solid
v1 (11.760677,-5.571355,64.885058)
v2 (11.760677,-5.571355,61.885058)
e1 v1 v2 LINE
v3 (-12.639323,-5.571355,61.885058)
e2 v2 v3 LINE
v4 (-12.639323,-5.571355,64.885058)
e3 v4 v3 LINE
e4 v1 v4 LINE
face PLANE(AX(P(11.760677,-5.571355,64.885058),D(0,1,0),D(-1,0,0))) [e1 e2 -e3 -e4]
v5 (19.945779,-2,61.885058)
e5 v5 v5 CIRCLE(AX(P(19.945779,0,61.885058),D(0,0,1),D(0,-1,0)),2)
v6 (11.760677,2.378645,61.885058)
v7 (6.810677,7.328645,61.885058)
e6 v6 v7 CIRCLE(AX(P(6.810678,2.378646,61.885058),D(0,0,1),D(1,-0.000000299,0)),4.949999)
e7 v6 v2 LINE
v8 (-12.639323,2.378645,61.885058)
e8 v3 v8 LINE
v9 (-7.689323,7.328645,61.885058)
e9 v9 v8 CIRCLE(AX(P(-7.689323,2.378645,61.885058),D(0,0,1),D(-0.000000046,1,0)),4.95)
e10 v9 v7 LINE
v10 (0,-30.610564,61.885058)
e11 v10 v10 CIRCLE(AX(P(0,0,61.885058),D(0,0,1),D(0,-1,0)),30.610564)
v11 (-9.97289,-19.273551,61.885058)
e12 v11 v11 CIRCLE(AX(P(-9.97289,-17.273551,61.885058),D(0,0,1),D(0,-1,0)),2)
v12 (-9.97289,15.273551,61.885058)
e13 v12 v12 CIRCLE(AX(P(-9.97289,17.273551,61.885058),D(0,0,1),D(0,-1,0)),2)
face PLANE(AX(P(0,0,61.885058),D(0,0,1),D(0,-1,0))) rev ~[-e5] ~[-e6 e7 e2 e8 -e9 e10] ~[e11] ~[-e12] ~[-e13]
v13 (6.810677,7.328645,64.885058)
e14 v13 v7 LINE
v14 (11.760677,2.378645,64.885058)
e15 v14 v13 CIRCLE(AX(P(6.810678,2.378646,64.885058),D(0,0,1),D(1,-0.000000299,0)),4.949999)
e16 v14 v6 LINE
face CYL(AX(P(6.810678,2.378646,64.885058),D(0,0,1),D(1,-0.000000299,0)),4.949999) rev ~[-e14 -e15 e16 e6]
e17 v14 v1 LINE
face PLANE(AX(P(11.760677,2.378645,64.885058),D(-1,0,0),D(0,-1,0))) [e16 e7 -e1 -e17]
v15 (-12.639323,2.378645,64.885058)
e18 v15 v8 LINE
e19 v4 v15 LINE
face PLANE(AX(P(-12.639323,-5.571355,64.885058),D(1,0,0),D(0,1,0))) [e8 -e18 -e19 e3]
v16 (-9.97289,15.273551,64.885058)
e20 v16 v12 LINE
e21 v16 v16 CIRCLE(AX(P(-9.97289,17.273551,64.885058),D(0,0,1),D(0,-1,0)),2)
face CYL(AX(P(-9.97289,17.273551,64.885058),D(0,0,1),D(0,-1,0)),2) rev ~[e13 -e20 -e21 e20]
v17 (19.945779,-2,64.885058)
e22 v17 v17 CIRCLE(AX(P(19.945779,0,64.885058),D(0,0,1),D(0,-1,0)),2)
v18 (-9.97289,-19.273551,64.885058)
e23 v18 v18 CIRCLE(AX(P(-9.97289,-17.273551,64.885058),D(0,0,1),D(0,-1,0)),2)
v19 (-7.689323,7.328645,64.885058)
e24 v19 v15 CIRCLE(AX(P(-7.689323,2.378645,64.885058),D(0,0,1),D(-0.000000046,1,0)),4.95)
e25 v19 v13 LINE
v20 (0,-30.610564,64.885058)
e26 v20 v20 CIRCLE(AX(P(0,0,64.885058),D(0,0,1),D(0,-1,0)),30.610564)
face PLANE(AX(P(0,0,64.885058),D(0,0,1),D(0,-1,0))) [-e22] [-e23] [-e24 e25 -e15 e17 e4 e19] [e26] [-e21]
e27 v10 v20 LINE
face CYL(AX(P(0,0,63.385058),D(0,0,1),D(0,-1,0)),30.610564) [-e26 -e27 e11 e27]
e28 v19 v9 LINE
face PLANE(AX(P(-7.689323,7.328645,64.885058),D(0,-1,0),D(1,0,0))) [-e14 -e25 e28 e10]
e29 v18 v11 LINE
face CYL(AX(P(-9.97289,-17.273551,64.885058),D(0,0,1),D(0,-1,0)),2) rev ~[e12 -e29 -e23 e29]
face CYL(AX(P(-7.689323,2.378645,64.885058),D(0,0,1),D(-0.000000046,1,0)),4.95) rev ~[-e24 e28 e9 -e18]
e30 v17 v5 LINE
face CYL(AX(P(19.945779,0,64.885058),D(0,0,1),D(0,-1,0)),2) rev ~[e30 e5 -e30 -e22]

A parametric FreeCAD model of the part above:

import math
import FreeCAD as App
import Part
import Sketcher
Q = App.Units.Quantity

doc = App.newDocument("Part")
body = doc.addObject("PartDesign::Body", "Body")

# Sketch on YZ plane
sketch1 = body.newObject("Sketcher::SketchObject", "Sketch")
sketch1.AttachmentSupport = (doc.getObject("YZ_Plane"), [""])
sketch1.MapMode = "FlatFace"
sketch1.addGeometry([
    Part.LineSegment(App.Vector(-30.6, 64.9, 0), App.Vector(-30.6, 61.9, 0)),
    Part.LineSegment(App.Vector(-30.6, 61.9, 0), App.Vector(0, 61.9, 0)),
    Part.LineSegment(App.Vector(0, 61.9, 0), App.Vector(0, 64.9, 0)),
    Part.LineSegment(App.Vector(0, 64.9, 0), App.Vector(-30.6, 64.9, 0)),
], False)
sketch1.addConstraint([
    Sketcher.Constraint("Coincident", 0, 2, 1, 1),
    Sketcher.Constraint("Coincident", 1, 2, 2, 1),
    Sketcher.Constraint("Coincident", 2, 2, 3, 1),
    Sketcher.Constraint("Coincident", 3, 2, 0, 1),
    Sketcher.Constraint("Vertical", 0),
    Sketcher.Constraint("Horizontal", 1),
    Sketcher.Constraint("Vertical", 2),
    Sketcher.Constraint("Horizontal", 3),
    Sketcher.Constraint("PointOnObject", 1, 2, -2),
    Sketcher.Constraint("DistanceY", 0, 2, 0, 1, Q("3 mm")),
    Sketcher.Constraint("DistanceX", 1, 1, 1, 2, Q("30.610564 mm")),
    Sketcher.Constraint("DistanceY", -1, 1, 2, 2, Q("64.885058 mm")),
])
revolution = body.newObject("PartDesign::Revolution", "Revolution")
revolution.Profile = sketch1
revolution.ReferenceAxis = (sketch1, ["V_Axis"])
revolution.Angle = 360

# Sketch on XY plane
sketch2 = body.newObject("Sketcher::SketchObject", "Sketch001")
sketch2.AttachmentSupport = (doc.getObject("XY_Plane"), [""])
sketch2.MapMode = "FlatFace"
sketch2.AttachmentOffset = App.Placement(App.Vector(0, 0, 64.885058), App.Rotation())
sketch2.addGeometry([
    Part.LineSegment(App.Vector(11.8, -5.6, 0), App.Vector(11.8, 2.4, 0)),  # 0
    Part.ArcOfCircle(Part.Circle(App.Vector(6.8, 2.4, 0), App.Vector(0, 0, 1), 4.9), math.radians(0), math.radians(90)),  # 1
    Part.LineSegment(App.Vector(6.8, 7.3, 0), App.Vector(-7.7, 7.3, 0)),  # 2
    Part.ArcOfCircle(Part.Circle(App.Vector(-7.7, 2.4, 0), App.Vector(0, 0, 1), 5), math.radians(90), math.radians(180)),  # 3
    Part.LineSegment(App.Vector(-12.6, 2.4, 0), App.Vector(-12.6, -5.6, 0)),  # 4
    Part.LineSegment(App.Vector(-12.6, -5.6, 0), App.Vector(11.8, -5.6, 0)),  # 5
], False)
sketch2.addConstraint([
    Sketcher.Constraint("Tangent", 0, 2, 1, 1),
    Sketcher.Constraint("Tangent", 1, 2, 2, 1),
    Sketcher.Constraint("Tangent", 2, 2, 3, 1),
    Sketcher.Constraint("Tangent", 3, 2, 4, 1),
    Sketcher.Constraint("Coincident", 4, 2, 5, 1),
    Sketcher.Constraint("Coincident", 5, 2, 0, 1),
    Sketcher.Constraint("Vertical", 0),
    Sketcher.Constraint("Horizontal", 2),
    Sketcher.Constraint("Vertical", 4),
    Sketcher.Constraint("Horizontal", 5),
    Sketcher.Constraint("Equal", 1, 3),
    Sketcher.Constraint("Radius", 1, Q("4.949999 mm")),
    Sketcher.Constraint("DistanceX", 2, 2, 2, 1, Q("14.5 mm")),
    Sketcher.Constraint("DistanceY", 0, 1, 0, 2, Q("7.95 mm")),
    Sketcher.Constraint("DistanceX", -1, 1, 1, 3, Q("6.810678 mm")),
    Sketcher.Constraint("DistanceY", -1, 1, 1, 3, Q("2.378646 mm")),
])
pocket1 = body.newObject("PartDesign::Pocket", "Pocket")
pocket1.Profile = sketch2
pocket1.Type = "ThroughAll"

# Sketch on XY plane
sketch3 = body.newObject("Sketcher::SketchObject", "Sketch002")
sketch3.AttachmentSupport = (doc.getObject("XY_Plane"), [""])
sketch3.MapMode = "FlatFace"
sketch3.AttachmentOffset = App.Placement(App.Vector(0, 0, 64.885058), App.Rotation())
sketch3.addGeometry([
    Part.Circle(App.Vector(-10, 17.3, 0), App.Vector(0, 0, 1), 2),
    Part.Circle(App.Vector(-10, -17.3, 0), App.Vector(0, 0, 1), 2),
    Part.Circle(App.Vector(19.9, 0, 0), App.Vector(0, 0, 1), 2),
], False)
sketch3.addConstraint([
    Sketcher.Constraint("Equal", 0, 1),
    Sketcher.Constraint("Equal", 1, 2),
    Sketcher.Constraint("Symmetric", 0, 3, 1, 3, -1),
    Sketcher.Constraint("PointOnObject", 2, 3, -1),
    Sketcher.Constraint("Diameter", 0, Q("4 mm")),
    Sketcher.Constraint("DistanceX", 0, 3, -1, 1, Q("9.97289 mm")),
    Sketcher.Constraint("DistanceY", -1, 1, 0, 3, Q("17.273551 mm")),
    Sketcher.Constraint("DistanceX", -1, 1, 2, 3, Q("19.945779 mm")),
])
pocket2 = body.newObject("PartDesign::Pocket", "Pocket001")
pocket2.Profile = sketch3
pocket2.Type = "ThroughAll"

doc.recompute()
